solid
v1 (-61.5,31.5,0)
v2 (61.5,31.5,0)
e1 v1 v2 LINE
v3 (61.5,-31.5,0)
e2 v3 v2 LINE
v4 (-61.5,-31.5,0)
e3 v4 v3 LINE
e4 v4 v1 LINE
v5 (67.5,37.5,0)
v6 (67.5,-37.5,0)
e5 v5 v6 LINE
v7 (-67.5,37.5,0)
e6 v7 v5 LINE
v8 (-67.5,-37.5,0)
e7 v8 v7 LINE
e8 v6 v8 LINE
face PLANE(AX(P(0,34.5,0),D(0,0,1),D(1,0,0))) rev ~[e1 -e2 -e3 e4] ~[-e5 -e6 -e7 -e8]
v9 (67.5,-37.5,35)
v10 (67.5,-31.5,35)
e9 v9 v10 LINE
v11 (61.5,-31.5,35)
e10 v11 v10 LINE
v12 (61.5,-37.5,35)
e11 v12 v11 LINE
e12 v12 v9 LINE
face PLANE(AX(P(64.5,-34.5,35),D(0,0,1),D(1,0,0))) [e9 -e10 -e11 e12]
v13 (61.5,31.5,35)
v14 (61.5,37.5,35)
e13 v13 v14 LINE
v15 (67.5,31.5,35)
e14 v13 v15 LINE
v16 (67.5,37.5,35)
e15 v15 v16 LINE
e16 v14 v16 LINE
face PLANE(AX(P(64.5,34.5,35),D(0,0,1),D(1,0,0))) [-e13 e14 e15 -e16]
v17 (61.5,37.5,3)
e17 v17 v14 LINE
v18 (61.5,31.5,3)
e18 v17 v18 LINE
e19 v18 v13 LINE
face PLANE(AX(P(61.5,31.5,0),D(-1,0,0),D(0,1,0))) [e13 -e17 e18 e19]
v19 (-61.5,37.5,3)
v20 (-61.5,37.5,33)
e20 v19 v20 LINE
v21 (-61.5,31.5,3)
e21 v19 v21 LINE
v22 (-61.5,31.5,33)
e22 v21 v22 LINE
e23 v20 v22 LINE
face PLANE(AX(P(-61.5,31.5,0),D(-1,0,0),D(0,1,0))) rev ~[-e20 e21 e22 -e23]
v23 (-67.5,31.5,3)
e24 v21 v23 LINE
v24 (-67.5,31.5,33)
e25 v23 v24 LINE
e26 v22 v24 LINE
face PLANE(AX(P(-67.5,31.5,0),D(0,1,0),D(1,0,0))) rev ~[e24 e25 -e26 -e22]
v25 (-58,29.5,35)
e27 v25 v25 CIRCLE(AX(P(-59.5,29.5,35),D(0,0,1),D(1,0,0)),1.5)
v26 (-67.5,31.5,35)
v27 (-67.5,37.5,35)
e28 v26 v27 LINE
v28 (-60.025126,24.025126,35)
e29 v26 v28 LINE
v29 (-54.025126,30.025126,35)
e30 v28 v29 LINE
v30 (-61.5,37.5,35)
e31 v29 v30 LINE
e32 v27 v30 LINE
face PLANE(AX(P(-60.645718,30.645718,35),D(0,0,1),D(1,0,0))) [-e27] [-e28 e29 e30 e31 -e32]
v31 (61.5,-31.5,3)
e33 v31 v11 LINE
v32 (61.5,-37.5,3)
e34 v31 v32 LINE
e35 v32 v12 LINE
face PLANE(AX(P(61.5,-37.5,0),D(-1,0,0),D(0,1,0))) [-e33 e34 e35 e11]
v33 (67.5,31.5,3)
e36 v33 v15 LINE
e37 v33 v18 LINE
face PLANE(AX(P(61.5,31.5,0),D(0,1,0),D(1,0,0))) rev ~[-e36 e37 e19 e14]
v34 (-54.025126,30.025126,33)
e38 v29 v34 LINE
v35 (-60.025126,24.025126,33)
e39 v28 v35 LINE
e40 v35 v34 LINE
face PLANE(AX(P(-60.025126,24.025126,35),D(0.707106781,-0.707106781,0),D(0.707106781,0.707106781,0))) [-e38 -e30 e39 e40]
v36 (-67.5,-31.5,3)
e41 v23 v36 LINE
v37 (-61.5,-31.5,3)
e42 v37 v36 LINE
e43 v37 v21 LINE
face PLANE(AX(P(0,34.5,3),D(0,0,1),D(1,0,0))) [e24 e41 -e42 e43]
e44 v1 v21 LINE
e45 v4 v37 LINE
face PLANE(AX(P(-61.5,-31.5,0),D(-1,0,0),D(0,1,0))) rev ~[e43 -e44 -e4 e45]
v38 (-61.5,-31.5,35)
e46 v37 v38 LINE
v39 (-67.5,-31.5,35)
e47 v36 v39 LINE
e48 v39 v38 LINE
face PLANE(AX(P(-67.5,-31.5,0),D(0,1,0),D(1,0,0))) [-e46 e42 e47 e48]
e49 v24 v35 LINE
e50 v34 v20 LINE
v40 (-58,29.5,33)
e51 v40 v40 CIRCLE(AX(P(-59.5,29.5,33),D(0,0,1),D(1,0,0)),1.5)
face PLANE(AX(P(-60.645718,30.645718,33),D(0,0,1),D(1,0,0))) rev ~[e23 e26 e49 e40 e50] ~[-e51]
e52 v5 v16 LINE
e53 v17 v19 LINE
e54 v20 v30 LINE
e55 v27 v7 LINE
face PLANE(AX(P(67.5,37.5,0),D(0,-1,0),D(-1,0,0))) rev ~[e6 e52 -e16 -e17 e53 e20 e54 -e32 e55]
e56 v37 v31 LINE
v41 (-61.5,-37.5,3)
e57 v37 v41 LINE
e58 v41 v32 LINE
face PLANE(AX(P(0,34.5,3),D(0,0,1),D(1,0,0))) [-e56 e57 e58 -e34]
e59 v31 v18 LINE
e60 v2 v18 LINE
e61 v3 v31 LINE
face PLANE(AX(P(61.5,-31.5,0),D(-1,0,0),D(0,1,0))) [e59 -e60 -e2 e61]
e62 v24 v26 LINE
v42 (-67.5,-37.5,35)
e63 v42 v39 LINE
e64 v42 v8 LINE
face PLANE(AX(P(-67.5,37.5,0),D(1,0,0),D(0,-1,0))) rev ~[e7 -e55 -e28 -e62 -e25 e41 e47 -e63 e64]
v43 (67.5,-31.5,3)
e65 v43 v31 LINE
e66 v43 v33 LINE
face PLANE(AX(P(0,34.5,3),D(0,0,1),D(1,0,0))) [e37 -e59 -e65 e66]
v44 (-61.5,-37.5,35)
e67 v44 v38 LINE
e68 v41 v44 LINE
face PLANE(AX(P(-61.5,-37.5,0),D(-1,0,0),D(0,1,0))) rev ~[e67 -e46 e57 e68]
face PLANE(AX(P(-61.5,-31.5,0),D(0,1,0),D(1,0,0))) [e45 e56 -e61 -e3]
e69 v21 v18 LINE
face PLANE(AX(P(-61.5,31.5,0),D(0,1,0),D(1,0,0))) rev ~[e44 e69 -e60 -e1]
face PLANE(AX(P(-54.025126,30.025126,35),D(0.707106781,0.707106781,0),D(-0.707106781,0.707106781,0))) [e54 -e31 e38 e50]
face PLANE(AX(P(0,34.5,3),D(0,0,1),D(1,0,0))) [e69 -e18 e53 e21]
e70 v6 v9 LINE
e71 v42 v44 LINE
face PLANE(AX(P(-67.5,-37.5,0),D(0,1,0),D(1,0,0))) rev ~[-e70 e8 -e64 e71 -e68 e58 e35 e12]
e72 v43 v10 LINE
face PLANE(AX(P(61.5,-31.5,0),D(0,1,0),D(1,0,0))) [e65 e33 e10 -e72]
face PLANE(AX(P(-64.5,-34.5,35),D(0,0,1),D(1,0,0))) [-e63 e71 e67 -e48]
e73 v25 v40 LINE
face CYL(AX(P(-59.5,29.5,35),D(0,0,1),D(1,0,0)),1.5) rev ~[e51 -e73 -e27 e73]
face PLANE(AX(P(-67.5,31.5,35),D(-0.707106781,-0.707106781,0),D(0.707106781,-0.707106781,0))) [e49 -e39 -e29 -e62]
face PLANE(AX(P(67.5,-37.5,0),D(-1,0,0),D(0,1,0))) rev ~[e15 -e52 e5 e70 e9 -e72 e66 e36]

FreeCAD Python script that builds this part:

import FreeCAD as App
import Part
import Sketcher
Q = App.Units.Quantity


def add_polygon(sketch, points):
    """Adds a closed chain of lines whose ends are joined by coincident constraints."""
    first, n = sketch.GeometryCount, len(points)
    for a, b in zip(points, points[1:] + points[:1]):
        sketch.addGeometry(Part.LineSegment(App.Vector(*a, 0), App.Vector(*b, 0)), False)
    for i in range(n):
        sketch.addConstraint(Sketcher.Constraint("Coincident", first + i, 2, first + (i + 1) % n, 1))

doc = App.newDocument("Part")
body = doc.addObject("PartDesign::Body", "Body")

sketch1 = doc.addObject("Sketcher::SketchObject", "Sketch")
body.addObject(sketch1)
sketch1.AttachmentSupport = (doc.XY_Plane, [""])
sketch1.MapMode = "FlatFace"
add_polygon(sketch1, [(67.5, 37.5), (-67.5, 37.5), (-67.5, -37.5), (67.5, -37.5)])
add_polygon(sketch1, [(-61.5, -31.5), (-61.5, 31.5), (61.5, 31.5), (61.5, -31.5)])
sketch1.addConstraint([
    Sketcher.Constraint("Horizontal", 0),
    Sketcher.Constraint("Vertical", 1),
    Sketcher.Constraint("Horizontal", 2),
    Sketcher.Constraint("Vertical", 3),
    Sketcher.Constraint("Vertical", 4),
    Sketcher.Constraint("Horizontal", 5),
    Sketcher.Constraint("Vertical", 6),
    Sketcher.Constraint("Horizontal", 7),
    Sketcher.Constraint("Symmetric", 0, 2, 2, 2, -1, 1),
    Sketcher.Constraint("Symmetric", 4, 2, 6, 2, -1, 1),
    Sketcher.Constraint("DistanceX", 0, 2, 0, 1, Q("135 mm")),
    Sketcher.Constraint("DistanceX", 5, 1, 5, 2, Q("123 mm")),
    Sketcher.Constraint("DistanceY", 1, 2, 1, 1, Q("75 mm")),
    Sketcher.Constraint("DistanceY", 4, 1, 4, 2, Q("63 mm")),
])
pad1 = doc.addObject("PartDesign::Pad", "Pad")
body.addObject(pad1)
pad1.Profile = sketch1
pad1.Length = 3

sketch2 = doc.addObject("Sketcher::SketchObject", "Sketch001")
body.addObject(sketch2)
sketch2.AttachmentSupport = (doc.XY_Plane, [""])
sketch2.MapMode = "FlatFace"
add_polygon(sketch2, [(-67.5, -31.5), (-67.5, -37.5), (-61.5, -37.5), (-61.5, -31.5)])
add_polygon(sketch2, [(61.5, -31.5), (61.5, -37.5), (67.5, -37.5), (67.5, -31.5)])
add_polygon(sketch2, [(61.5, 37.5), (61.5, 31.5), (67.5, 31.5), (67.5, 37.5)])
add_polygon(sketch2, [(-67.5, 37.5), (-67.5, 31.5), (-61.5, 31.5), (-61.5, 37.5)])
sketch2.addConstraint([
    Sketcher.Constraint("Vertical", 0),
    Sketcher.Constraint("Horizontal", 1),
    Sketcher.Constraint("Vertical", 2),
    Sketcher.Constraint("Horizontal", 3),
    Sketcher.Constraint("Vertical", 4),
    Sketcher.Constraint("Horizontal", 5),
    Sketcher.Constraint("Vertical", 6),
    Sketcher.Constraint("Horizontal", 7),
    Sketcher.Constraint("Vertical", 8),
    Sketcher.Constraint("Horizontal", 9),
    Sketcher.Constraint("Vertical", 10),
    Sketcher.Constraint("Horizontal", 11),
    Sketcher.Constraint("Vertical", 12),
    Sketcher.Constraint("Horizontal", 13),
    Sketcher.Constraint("Vertical", 14),
    Sketcher.Constraint("Horizontal", 15),
    Sketcher.Constraint("Symmetric", 2, 2, 8, 2, -1, 1),
    Sketcher.Constraint("Symmetric", 0, 2, 10, 2, -1, 1),
    Sketcher.Constraint("Symmetric", 6, 2, 12, 2, -1, 1),
    Sketcher.Constraint("Symmetric", 4, 2, 14, 2, -1, 1),
    Sketcher.Constraint("Symmetric", 1, 2, 4, 2, -2),
    Sketcher.Constraint("Symmetric", 3, 2, 6, 2, -2),
    Sketcher.Constraint("Equal", 15, 0),
    Sketcher.Constraint("DistanceX", 1, 1, 1, 2, Q("6 mm")),
    Sketcher.Constraint("DistanceX", 1, 2, 4, 2, Q("123 mm")),
    Sketcher.Constraint("DistanceY", 7, 2, 8, 2, Q("63 mm")),
])
pad2 = doc.addObject("PartDesign::Pad", "Pad001")
body.addObject(pad2)
pad2.Profile = sketch2
pad2.Length = 35

sketch3 = doc.addObject("Sketcher::SketchObject", "Sketch002")
body.addObject(sketch3)
sketch3.AttachmentSupport = (doc.XY_Plane, [""])
sketch3.MapMode = "FlatFace"
sketch3.AttachmentOffset = App.Placement(App.Vector(0, 0, 35), App.Rotation())
add_polygon(sketch3, [(-61.5, 31.5), (-67.5, 31.5), (-60.025126, 24.025126), (-54.025126, 30.025126), (-61.5, 37.5)])
sketch3.addGeometry(Part.Circle(App.Vector(-59.5, 29.5, 0), App.Vector(0, 0, 1), 1.5), False)
sketch3.addConstraint([
    Sketcher.Constraint("Horizontal", 0),
    Sketcher.Constraint("Vertical", 4),
    Sketcher.Constraint("Perpendicular", 1, 2),
    Sketcher.Constraint("Perpendicular", 2, 3),
    Sketcher.Constraint("Equal", 0, 4),
    Sketcher.Constraint("Equal", 1, 3),
    Sketcher.Constraint("Diameter", 5, Q("3 mm")),
    Sketcher.Constraint("DistanceX", 0, 2, 0, 1, Q("6 mm")),
    Sketcher.Constraint("DistanceX", 0, 2, 5, 3, Q("8 mm")),
    Sketcher.Constraint("DistanceY", 5, 3, 0, 2, Q("2 mm")),
    Sketcher.Constraint("DistanceX", 5, 3, -1, 1, Q("59.5 mm")),
    Sketcher.Constraint("DistanceY", -1, 1, 5, 3, Q("29.5 mm")),
    Sketcher.Constraint("Distance", 1, Q("10.571068 mm")),
])
pad3 = doc.addObject("PartDesign::Pad", "Pad002")
body.addObject(pad3)
pad3.Profile = sketch3
pad3.Length = 2
pad3.Reversed = True

doc.recompute()
